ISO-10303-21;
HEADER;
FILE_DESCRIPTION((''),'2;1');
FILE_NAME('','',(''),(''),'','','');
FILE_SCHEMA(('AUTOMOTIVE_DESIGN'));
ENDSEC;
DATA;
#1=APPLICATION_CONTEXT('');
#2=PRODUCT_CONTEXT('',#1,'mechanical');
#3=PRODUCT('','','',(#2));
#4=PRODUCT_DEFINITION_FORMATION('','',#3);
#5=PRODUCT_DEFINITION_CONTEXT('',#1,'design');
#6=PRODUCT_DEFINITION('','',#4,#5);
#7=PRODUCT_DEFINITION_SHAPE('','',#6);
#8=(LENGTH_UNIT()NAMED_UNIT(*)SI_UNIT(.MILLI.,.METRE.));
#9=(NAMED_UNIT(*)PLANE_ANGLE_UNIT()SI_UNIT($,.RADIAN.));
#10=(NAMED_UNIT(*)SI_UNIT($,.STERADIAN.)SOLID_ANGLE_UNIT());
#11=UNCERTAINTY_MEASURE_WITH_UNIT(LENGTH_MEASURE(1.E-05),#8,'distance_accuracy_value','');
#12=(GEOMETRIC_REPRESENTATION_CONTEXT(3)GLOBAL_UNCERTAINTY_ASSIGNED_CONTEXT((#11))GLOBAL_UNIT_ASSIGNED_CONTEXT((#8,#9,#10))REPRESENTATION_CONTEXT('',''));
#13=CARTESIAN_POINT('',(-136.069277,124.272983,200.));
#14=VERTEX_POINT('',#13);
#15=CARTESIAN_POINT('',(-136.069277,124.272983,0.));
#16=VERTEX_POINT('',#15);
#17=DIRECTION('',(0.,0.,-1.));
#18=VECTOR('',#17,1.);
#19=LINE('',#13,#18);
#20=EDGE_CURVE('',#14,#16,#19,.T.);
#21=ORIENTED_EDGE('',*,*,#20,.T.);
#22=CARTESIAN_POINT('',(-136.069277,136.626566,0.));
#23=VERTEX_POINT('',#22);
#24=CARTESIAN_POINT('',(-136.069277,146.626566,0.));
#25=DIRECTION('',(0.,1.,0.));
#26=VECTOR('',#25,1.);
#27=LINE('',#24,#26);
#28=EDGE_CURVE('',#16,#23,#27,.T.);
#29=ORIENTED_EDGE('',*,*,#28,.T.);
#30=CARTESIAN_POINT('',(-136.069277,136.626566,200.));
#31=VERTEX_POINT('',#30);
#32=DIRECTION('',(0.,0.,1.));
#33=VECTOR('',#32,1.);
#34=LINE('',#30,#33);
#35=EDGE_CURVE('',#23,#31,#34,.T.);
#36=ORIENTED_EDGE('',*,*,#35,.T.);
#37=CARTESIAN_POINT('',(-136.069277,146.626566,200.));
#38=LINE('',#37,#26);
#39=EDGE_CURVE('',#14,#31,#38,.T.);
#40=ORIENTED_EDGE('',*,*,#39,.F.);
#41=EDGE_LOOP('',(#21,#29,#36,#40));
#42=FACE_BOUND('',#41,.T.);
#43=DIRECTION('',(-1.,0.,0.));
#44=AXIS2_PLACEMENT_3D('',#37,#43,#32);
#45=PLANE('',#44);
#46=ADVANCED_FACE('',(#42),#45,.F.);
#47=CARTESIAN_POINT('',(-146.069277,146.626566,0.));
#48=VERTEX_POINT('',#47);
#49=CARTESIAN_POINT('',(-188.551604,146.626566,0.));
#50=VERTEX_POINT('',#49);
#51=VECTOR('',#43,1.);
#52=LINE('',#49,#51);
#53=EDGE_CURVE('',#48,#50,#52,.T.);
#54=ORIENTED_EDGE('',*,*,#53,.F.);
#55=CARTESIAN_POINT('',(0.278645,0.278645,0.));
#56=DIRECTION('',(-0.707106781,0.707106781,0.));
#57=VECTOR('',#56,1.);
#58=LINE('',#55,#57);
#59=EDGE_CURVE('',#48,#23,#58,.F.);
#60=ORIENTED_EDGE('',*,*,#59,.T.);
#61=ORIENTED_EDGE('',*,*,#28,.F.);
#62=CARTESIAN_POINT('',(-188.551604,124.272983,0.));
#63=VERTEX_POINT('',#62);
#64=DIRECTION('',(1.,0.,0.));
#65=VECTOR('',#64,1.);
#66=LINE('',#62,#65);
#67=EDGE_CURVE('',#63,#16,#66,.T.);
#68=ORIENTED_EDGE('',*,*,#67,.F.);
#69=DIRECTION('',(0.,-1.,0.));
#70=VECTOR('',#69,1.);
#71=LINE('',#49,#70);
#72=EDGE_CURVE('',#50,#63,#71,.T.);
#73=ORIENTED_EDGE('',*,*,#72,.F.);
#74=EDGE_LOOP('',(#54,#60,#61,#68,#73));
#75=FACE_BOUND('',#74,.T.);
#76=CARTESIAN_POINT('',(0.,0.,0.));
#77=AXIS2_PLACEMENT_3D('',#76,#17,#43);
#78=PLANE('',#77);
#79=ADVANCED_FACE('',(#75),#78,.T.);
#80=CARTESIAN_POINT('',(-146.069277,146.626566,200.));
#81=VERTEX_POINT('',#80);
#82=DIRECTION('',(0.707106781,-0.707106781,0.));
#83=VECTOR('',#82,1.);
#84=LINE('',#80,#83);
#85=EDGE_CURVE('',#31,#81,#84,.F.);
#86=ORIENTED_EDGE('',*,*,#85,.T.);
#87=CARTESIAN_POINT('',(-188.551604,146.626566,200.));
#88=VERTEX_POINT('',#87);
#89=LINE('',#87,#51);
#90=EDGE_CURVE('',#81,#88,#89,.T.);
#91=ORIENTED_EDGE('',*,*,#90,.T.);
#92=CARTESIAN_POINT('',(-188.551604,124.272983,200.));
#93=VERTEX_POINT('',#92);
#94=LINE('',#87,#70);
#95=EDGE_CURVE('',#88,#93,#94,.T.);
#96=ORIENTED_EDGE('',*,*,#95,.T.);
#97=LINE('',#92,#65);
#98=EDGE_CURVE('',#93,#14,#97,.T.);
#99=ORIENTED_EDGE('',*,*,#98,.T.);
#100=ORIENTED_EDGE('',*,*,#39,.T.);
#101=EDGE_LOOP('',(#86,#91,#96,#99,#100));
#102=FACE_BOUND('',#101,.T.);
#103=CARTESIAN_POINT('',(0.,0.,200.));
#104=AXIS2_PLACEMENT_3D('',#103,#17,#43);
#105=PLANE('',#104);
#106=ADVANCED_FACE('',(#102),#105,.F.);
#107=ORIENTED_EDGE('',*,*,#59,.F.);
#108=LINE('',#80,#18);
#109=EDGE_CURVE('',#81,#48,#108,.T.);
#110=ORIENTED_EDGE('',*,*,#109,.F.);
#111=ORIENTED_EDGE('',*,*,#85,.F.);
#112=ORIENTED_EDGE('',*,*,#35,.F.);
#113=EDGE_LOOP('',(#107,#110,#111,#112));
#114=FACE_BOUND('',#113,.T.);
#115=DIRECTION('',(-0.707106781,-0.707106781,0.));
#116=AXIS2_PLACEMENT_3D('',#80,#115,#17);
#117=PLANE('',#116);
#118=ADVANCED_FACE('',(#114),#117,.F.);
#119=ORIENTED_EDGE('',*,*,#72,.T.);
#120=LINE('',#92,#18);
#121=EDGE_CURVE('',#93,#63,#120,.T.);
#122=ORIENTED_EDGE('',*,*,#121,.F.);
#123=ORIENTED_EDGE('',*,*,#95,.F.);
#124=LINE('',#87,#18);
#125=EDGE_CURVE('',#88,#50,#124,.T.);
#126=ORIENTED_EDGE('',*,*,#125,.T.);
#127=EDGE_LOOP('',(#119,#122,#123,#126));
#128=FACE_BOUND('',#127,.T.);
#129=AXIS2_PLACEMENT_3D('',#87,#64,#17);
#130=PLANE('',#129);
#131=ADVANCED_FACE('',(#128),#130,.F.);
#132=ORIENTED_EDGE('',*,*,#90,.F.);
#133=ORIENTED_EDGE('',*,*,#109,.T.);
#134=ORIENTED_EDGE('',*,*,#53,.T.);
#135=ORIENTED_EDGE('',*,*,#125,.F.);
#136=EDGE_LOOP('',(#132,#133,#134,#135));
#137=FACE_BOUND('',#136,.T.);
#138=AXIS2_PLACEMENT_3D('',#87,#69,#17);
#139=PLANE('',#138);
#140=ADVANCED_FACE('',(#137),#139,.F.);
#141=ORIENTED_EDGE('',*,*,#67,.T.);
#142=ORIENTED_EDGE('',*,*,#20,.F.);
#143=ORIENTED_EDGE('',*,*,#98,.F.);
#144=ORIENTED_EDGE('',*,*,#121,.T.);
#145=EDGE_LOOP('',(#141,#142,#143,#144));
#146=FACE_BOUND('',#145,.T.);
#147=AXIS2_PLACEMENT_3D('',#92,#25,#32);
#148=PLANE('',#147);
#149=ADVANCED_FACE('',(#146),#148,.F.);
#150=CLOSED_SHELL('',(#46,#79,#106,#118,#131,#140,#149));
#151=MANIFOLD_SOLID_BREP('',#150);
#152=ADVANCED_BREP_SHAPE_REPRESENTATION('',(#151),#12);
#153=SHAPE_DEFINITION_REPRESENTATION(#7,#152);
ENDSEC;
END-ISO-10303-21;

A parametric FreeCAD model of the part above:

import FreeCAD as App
import Part
import Sketcher

V = App.Vector


def edges_at(feature, points):
    """Names of the edges that pass closest to the given points."""
    edges = feature.Shape.Edges
    near = lambda p: min(range(len(edges)), key=lambda i: edges[i].distToShape(Part.Vertex(*p))[0])
    return sorted({f"Edge{near(p) + 1}" for p in points})

doc = App.newDocument("Part")
body = doc.addObject("PartDesign::Body", "Body")

# Sketch on XY plane
sketch1 = body.newObject("Sketcher::SketchObject", "Sketch")
sketch1.AttachmentSupport = (doc.getObject("XY_Plane"), [""])
sketch1.MapMode = "FlatFace"
sketch1.addGeometry(Part.LineSegment(V(-189, 147, 0), V(-189, 124, 0)), False)
sketch1.addGeometry(Part.LineSegment(V(-189, 124, 0), V(-136, 124, 0)), False)
sketch1.addGeometry(Part.LineSegment(V(-136, 124, 0), V(-136, 147, 0)), False)
sketch1.addGeometry(Part.LineSegment(V(-136, 147, 0), V(-189, 147, 0)), False)
sketch1.addConstraint(Sketcher.Constraint("Coincident", 0, 2, 1, 1))
sketch1.addConstraint(Sketcher.Constraint("Coincident", 1, 2, 2, 1))
sketch1.addConstraint(Sketcher.Constraint("Coincident", 2, 2, 3, 1))
sketch1.addConstraint(Sketcher.Constraint("Coincident", 3, 2, 0, 1))
sketch1.addConstraint(Sketcher.Constraint("Vertical", 0))
sketch1.addConstraint(Sketcher.Constraint("Horizontal", 1))
sketch1.addConstraint(Sketcher.Constraint("Vertical", 2))
sketch1.addConstraint(Sketcher.Constraint("Horizontal", 3))
sketch1.addConstraint(Sketcher.Constraint("DistanceX", 1, 1, 1, 2, 52.482327))
sketch1.addConstraint(Sketcher.Constraint("DistanceY", 0, 2, 0, 1, 22.353584))
sketch1.addConstraint(Sketcher.Constraint("DistanceX", 0, 2, -1, 1, 188.551604))
sketch1.addConstraint(Sketcher.Constraint("DistanceY", -1, 1, 0, 2, 124.272983))
pad1 = body.newObject("PartDesign::Pad", "Pad")
pad1.Profile = sketch1
pad1.Length = 200
doc.recompute()

chamfer = body.newObject("PartDesign::Chamfer", "Chamfer")
chamfer.Base = (pad1, edges_at(pad1, [(-136.069, 146.627, 100)]))
chamfer.Size = 10

doc.recompute()
